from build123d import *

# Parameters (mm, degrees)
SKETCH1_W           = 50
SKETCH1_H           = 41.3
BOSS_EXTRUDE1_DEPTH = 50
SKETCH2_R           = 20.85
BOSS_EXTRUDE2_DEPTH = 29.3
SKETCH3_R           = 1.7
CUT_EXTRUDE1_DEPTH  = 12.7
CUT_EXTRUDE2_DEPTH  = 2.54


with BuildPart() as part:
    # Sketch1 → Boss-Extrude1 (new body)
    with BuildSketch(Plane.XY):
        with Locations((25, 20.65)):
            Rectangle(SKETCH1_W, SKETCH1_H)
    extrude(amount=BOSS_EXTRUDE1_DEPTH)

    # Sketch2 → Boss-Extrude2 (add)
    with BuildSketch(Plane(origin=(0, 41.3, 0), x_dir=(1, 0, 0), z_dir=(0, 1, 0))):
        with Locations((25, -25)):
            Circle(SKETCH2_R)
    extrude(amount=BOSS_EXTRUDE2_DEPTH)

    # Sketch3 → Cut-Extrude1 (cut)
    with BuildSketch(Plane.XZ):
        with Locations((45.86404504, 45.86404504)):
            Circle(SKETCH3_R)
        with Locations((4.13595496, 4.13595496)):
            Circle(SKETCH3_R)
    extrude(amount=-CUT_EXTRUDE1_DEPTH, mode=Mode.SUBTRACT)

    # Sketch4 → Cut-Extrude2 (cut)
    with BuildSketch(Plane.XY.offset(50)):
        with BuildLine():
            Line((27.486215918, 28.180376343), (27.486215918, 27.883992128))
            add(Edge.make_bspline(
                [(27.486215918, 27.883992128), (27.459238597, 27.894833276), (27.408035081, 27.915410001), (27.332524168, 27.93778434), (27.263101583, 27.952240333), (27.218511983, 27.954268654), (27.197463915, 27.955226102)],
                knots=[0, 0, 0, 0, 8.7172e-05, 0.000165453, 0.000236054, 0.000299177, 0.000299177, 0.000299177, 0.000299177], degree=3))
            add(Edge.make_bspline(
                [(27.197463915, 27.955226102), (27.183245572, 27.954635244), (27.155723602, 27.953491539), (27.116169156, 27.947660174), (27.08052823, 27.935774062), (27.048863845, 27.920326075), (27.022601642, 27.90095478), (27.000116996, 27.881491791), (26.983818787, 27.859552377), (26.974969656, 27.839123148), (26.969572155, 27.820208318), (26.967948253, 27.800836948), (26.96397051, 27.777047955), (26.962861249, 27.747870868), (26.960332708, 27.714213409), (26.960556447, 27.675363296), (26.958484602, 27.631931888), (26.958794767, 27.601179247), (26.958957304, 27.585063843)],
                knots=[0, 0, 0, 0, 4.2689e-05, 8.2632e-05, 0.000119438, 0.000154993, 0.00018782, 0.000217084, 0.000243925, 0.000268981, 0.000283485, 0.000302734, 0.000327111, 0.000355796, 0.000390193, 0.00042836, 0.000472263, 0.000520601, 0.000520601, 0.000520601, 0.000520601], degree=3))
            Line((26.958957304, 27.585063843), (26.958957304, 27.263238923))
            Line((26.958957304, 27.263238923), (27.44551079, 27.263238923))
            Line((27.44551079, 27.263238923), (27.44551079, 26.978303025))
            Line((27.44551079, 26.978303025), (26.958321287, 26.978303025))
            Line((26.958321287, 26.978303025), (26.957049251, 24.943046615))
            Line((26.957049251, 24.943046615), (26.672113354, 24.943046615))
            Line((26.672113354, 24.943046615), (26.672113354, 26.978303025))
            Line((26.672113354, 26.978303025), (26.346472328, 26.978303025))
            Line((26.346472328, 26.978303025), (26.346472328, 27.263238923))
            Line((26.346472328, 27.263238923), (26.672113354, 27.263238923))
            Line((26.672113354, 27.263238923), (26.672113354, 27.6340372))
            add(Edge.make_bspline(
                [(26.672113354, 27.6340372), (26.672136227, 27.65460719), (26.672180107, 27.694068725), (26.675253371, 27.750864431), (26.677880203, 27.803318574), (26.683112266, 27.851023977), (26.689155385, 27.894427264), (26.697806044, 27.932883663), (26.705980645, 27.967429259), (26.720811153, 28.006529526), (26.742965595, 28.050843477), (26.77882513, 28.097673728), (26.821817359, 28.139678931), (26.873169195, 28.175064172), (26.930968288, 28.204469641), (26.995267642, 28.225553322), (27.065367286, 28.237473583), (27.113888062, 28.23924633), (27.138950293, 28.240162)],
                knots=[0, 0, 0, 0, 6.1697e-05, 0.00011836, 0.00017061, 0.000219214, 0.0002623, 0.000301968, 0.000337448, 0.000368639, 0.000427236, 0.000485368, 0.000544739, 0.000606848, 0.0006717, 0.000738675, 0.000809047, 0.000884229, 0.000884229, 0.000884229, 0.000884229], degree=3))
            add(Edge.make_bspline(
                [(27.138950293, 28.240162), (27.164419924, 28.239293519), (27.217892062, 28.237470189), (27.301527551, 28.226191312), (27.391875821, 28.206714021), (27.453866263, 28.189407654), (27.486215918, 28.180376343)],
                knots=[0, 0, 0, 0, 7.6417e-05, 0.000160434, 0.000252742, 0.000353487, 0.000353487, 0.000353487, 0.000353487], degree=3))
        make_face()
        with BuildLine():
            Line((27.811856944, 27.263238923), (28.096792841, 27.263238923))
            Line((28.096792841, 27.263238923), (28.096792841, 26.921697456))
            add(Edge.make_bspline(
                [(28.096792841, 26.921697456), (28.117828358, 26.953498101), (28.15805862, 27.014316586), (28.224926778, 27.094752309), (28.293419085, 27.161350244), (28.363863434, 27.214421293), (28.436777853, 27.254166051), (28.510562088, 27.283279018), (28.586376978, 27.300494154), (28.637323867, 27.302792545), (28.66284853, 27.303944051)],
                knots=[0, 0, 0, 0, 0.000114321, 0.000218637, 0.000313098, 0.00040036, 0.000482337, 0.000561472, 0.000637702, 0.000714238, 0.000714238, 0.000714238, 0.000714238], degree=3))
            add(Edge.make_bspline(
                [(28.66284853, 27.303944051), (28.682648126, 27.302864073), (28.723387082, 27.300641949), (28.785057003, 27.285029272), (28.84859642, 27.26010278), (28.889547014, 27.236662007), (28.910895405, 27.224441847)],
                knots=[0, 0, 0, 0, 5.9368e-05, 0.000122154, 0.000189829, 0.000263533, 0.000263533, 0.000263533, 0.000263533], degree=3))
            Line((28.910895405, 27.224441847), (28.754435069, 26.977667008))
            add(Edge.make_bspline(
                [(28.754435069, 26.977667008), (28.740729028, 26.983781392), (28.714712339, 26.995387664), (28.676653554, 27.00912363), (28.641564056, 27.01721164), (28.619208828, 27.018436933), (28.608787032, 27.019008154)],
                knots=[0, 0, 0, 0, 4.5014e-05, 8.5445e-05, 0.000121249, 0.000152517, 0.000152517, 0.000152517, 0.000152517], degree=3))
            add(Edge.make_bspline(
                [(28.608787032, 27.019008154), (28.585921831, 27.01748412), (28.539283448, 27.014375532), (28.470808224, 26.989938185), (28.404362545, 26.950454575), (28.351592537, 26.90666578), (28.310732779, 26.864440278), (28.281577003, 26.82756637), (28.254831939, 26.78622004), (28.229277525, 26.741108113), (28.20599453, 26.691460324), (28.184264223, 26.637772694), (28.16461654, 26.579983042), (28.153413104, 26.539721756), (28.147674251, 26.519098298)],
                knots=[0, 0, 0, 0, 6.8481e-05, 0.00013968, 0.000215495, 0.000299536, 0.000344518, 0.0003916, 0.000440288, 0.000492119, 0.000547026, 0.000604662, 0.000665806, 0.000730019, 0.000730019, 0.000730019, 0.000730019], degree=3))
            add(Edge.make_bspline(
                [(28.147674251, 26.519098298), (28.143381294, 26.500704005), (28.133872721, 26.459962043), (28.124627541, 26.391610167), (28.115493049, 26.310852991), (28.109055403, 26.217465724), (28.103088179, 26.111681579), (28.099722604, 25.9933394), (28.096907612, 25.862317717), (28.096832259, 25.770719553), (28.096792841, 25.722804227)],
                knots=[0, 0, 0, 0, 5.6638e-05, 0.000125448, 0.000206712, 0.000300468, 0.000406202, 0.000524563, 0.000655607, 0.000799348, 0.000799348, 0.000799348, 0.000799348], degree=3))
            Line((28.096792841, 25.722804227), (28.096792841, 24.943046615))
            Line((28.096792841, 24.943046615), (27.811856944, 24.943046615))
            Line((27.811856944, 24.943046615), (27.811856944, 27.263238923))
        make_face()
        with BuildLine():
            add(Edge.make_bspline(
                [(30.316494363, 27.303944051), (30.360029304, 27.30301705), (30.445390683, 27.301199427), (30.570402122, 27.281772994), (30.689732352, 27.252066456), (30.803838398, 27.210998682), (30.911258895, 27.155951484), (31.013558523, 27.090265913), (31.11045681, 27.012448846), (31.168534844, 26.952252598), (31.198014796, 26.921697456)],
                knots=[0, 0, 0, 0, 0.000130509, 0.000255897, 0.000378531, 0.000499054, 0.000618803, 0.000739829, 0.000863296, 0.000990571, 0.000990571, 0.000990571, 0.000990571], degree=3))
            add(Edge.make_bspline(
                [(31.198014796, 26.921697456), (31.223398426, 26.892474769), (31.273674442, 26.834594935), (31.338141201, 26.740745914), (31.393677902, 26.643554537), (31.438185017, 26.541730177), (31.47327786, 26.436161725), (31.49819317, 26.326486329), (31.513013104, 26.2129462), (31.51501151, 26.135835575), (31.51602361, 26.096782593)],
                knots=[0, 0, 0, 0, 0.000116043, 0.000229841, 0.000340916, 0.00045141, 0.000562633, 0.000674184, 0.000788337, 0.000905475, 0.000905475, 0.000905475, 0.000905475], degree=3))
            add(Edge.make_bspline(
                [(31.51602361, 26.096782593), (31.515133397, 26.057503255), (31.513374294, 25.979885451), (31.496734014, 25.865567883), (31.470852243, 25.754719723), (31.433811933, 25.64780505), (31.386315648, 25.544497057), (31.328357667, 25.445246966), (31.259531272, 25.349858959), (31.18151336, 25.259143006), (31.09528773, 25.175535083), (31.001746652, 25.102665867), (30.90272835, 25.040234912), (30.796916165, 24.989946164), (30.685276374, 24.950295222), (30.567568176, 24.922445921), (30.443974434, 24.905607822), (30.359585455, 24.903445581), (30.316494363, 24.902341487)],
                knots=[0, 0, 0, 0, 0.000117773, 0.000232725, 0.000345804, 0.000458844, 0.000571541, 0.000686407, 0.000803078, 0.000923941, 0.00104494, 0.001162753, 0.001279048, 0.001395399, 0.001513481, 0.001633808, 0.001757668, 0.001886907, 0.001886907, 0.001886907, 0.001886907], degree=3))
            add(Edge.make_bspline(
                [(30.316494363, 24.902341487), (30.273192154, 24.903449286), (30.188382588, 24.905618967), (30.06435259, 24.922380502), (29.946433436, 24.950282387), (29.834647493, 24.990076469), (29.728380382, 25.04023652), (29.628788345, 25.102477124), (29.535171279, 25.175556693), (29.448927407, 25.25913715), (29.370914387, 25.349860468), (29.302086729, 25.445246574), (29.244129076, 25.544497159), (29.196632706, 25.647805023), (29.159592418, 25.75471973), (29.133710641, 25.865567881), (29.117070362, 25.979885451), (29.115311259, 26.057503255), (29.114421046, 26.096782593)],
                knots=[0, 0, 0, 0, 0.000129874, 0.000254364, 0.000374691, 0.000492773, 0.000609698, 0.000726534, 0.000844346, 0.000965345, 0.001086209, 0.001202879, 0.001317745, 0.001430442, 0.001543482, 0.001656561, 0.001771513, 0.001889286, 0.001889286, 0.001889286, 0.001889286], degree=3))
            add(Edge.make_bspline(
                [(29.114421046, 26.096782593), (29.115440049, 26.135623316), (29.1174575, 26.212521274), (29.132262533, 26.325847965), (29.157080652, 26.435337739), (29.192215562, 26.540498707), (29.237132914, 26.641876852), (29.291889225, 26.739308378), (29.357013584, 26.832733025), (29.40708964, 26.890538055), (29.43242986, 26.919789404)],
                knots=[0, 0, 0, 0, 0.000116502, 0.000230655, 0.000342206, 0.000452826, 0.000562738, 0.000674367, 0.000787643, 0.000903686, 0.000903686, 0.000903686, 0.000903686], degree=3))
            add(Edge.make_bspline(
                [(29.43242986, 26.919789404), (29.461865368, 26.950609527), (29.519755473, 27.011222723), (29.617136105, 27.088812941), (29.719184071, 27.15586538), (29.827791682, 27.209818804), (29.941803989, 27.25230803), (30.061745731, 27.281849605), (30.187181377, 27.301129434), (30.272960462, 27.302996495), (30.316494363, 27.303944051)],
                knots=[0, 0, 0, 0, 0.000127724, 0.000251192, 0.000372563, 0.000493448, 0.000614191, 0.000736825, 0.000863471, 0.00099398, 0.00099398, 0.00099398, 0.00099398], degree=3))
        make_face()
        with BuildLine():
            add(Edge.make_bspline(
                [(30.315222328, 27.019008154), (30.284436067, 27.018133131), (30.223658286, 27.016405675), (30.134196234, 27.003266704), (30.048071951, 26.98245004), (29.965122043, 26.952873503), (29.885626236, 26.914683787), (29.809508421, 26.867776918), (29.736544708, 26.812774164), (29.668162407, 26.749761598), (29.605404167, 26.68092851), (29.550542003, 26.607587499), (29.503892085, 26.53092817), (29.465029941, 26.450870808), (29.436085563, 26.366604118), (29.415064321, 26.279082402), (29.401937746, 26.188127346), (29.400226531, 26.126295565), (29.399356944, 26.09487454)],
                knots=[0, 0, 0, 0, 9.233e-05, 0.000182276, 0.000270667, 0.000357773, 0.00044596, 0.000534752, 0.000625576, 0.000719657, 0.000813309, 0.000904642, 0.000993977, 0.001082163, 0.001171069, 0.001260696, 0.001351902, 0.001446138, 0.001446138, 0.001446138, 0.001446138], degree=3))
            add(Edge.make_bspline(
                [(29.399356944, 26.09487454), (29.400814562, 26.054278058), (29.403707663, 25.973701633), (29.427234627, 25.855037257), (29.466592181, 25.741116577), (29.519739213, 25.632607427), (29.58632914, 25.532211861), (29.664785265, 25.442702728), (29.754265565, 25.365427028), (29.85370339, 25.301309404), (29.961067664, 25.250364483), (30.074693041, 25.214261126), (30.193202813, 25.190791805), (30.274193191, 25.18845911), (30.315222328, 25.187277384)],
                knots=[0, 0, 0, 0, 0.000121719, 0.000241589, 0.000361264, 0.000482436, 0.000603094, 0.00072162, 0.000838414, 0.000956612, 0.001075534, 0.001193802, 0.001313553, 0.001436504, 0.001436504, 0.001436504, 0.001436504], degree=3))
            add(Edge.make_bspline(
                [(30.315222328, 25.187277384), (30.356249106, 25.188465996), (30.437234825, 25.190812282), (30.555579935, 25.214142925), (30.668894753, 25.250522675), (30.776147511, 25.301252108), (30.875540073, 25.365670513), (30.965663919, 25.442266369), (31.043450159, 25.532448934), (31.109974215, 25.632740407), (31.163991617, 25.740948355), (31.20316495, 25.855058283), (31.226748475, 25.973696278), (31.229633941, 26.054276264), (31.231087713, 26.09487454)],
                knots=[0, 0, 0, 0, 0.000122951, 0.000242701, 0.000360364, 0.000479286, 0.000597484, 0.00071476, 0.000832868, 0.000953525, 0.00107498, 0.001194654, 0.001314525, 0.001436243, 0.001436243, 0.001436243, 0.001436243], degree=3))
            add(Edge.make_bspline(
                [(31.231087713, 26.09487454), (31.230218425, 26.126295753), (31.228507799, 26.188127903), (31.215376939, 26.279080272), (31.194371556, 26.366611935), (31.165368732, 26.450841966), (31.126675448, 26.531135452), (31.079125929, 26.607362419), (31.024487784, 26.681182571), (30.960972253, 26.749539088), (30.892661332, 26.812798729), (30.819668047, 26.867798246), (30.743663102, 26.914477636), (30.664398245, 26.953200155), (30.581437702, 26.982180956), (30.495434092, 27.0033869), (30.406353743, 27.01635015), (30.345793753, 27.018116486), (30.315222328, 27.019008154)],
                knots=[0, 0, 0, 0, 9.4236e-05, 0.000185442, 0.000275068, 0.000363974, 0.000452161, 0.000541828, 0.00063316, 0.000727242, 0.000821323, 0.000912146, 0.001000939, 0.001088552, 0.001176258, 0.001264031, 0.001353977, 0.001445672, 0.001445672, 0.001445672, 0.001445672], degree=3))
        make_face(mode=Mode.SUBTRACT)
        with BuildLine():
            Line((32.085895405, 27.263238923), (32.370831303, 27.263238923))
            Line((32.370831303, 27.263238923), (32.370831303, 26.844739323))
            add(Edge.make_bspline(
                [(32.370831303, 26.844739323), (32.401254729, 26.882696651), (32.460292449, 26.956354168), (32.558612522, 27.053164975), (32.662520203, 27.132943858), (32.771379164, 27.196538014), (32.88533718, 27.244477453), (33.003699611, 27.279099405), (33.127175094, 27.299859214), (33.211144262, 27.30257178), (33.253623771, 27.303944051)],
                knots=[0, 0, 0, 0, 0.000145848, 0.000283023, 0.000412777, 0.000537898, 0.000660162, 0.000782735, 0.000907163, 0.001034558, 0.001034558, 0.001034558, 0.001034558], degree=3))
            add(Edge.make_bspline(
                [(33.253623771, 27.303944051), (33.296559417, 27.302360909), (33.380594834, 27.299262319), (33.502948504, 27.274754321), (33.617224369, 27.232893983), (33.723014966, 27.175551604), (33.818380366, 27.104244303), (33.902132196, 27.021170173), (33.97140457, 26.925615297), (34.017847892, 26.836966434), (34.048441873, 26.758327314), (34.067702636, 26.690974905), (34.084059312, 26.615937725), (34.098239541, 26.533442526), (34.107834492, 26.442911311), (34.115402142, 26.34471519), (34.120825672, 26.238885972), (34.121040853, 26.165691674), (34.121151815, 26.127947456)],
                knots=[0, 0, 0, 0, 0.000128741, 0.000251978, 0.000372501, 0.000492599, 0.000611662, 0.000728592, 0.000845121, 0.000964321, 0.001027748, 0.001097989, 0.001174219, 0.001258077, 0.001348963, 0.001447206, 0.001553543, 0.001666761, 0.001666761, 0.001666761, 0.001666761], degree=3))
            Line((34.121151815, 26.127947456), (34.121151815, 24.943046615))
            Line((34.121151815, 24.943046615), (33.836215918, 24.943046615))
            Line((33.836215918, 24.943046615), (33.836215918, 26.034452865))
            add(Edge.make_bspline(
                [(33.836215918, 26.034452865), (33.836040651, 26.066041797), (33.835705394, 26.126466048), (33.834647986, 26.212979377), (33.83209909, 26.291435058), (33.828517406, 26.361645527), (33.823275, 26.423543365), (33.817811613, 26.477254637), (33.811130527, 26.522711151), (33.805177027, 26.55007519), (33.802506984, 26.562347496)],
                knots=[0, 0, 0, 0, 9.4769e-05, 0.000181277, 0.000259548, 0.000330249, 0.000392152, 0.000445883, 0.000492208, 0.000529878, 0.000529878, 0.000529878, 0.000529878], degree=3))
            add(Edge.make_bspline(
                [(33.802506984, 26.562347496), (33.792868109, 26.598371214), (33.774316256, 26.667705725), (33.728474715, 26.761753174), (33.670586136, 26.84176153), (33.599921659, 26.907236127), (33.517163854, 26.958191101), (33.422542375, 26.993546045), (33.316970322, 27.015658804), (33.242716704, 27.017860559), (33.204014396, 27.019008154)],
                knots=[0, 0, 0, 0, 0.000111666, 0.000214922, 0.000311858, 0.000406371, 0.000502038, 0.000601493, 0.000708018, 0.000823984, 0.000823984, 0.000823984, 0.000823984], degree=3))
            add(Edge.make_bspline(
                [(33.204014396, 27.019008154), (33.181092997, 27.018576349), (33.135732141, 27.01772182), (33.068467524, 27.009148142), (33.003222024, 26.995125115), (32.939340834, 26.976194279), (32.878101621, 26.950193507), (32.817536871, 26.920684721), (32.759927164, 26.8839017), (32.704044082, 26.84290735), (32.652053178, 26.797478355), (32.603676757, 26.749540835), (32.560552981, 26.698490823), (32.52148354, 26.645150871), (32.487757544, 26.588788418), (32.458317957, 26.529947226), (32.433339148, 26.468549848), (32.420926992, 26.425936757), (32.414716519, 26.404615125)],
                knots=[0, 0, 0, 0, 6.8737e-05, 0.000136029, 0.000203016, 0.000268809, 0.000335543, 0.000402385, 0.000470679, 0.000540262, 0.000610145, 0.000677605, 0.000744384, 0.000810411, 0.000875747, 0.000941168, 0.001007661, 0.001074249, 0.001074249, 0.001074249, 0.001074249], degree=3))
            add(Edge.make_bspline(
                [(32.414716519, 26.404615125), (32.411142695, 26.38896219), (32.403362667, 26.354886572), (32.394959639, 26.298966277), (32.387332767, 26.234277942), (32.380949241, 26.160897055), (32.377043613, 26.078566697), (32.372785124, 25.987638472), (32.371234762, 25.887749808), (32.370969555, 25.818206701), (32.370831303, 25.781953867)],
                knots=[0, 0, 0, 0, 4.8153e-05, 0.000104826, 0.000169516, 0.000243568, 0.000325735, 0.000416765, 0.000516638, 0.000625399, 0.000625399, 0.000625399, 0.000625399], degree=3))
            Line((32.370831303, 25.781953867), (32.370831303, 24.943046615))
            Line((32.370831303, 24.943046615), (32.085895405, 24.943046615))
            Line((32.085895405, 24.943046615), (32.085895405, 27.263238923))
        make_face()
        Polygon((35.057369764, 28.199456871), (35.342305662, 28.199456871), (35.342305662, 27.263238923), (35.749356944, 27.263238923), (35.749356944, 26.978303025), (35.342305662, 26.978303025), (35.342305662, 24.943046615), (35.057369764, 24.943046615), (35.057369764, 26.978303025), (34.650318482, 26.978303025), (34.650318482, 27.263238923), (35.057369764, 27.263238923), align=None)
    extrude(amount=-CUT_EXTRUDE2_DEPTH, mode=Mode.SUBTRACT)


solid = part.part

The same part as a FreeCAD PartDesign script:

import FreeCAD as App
import Part
import Sketcher


def add_polygon(sketch, points):
    """Adds a closed chain of lines whose ends are joined by coincident constraints."""
    first, n = sketch.GeometryCount, len(points)
    for a, b in zip(points, points[1:] + points[:1]):
        sketch.addGeometry(Part.LineSegment(App.Vector(*a, 0), App.Vector(*b, 0)), False)
    for i in range(n):
        sketch.addConstraint(Sketcher.Constraint("Coincident", first + i, 2, first + (i + 1) % n, 1))

doc = App.newDocument("Part")
body = doc.addObject("PartDesign::Body", "Body")

# Sketch on XY plane
sketch1 = body.newObject("Sketcher::SketchObject", "Sketch")
sketch1.AttachmentSupport = (doc.getObject("XY_Plane"), [""])
sketch1.MapMode = "FlatFace"
add_polygon(sketch1, [(0, 41.3), (0, 0), (50, 0), (50, 41.3)])  # lines 0-3
sketch1.addConstraint([
    Sketcher.Constraint("Vertical", 0),
    Sketcher.Constraint("Horizontal", 1),
    Sketcher.Constraint("Vertical", 2),
    Sketcher.Constraint("Horizontal", 3),
    Sketcher.Constraint("Coincident", 0, 2, -1, 1),
    Sketcher.Constraint("DistanceX", 1, 1, 1, 2, 50.0),
    Sketcher.Constraint("DistanceY", 0, 2, 0, 1, 41.3),
])
pad1 = body.newObject("PartDesign::Pad", "Pad")
pad1.Profile = sketch1
pad1.Length = 50

# Sketch on XZ plane
sketch2 = body.newObject("Sketcher::SketchObject", "Sketch001")
sketch2.AttachmentSupport = (doc.getObject("XZ_Plane"), [""])
sketch2.MapMode = "FlatFace"
sketch2.AttachmentOffset = App.Placement(App.Vector(0, 0, -41.3), App.Rotation())
sketch2.addGeometry(Part.Circle(App.Vector(25, 25, 0), App.Vector(0, 0, 1), 20.85), False)
sketch2.addConstraint([
    Sketcher.Constraint("Diameter", 0, 41.7),
    Sketcher.Constraint("DistanceX", -1, 1, 0, 3, 25.0),
    Sketcher.Constraint("DistanceY", -1, 1, 0, 3, 25.0),
])
pad2 = body.newObject("PartDesign::Pad", "Pad001")
pad2.Profile = sketch2
pad2.Length = 29.3
pad2.Reversed = True

# Sketch on XZ plane
sketch3 = body.newObject("Sketcher::SketchObject", "Sketch002")
sketch3.AttachmentSupport = (doc.getObject("XZ_Plane"), [""])
sketch3.MapMode = "FlatFace"
sketch3.addGeometry([
    Part.Circle(App.Vector(45.864045, 45.864045, 0), App.Vector(0, 0, 1), 1.7),
    Part.Circle(App.Vector(4.135955, 4.135955, 0), App.Vector(0, 0, 1), 1.7),
], False)
sketch3.addConstraint([
    Sketcher.Constraint("Equal", 0, 1),
    Sketcher.Constraint("Diameter", 0, 3.4),
    Sketcher.Constraint("DistanceX", 1, 3, 0, 3, 41.72809),
    Sketcher.Constraint("DistanceY", 1, 3, 0, 3, 41.72809),
    Sketcher.Constraint("DistanceX", -1, 1, 0, 3, 45.864045),
    Sketcher.Constraint("DistanceY", -1, 1, 0, 3, 45.864045),
])
pocket1 = body.newObject("PartDesign::Pocket", "Pocket")
pocket1.Profile = sketch3
pocket1.Length = 12.7

# Sketch on XY plane
sketch4 = body.newObject("Sketcher::SketchObject", "Sketch003")
sketch4.AttachmentSupport = (doc.getObject("XY_Plane"), [""])
sketch4.MapMode = "FlatFace"
sketch4.AttachmentOffset = App.Placement(App.Vector(0, 0, 50), App.Rotation())
sketch4.addGeometry(Part.LineSegment(App.Vector(27.486216, 27.883992, 0), App.Vector(27.486216, 28.180376, 0)), False)  # 0
sketch4.addGeometry(Part.BSplineCurve([App.Vector(27.13895, 28.240162, 0), App.Vector(27.16442, 28.239294, 0), App.Vector(27.217892, 28.23747, 0), App.Vector(27.301528, 28.226191, 0), App.Vector(27.391876, 28.206714, 0), App.Vector(27.453866, 28.189408, 0), App.Vector(27.486216, 28.180376, 0)], [4, 1, 1, 1, 4], [0, 0.000076417, 0.000160434, 0.000252742, 0.000353487], False, 3, [1, 1, 1, 1, 1, 1, 1], False), False)  # 1
sketch4.addGeometry(Part.BSplineCurve([App.Vector(26.672113, 27.634037, 0), App.Vector(26.672136, 27.654607, 0), App.Vector(26.67218, 27.694069, 0), App.Vector(26.675253, 27.750864, 0), App.Vector(26.67788, 27.803319, 0), App.Vector(26.683112, 27.851024, 0), App.Vector(26.689155, 27.894427, 0), App.Vector(26.697806, 27.932884, 0), App.Vector(26.705981, 27.967429, 0), App.Vector(26.720811, 28.00653, 0), App.Vector(26.742966, 28.050843, 0), App.Vector(26.778825, 28.097674, 0), App.Vector(26.821817, 28.139679, 0), App.Vector(26.873169, 28.175064, 0), App.Vector(26.930968, 28.20447, 0), App.Vector(26.995268, 28.225553, 0), App.Vector(27.065367, 28.237474, 0), App.Vector(27.113888, 28.239246, 0), App.Vector(27.13895, 28.240162, 0)], [4, 1, 1, 1, 1, 1, 1, 1, 1, 1, 1, 1, 1, 1, 1, 1, 4], [0, 0.000061697, 0.00011836, 0.00017061, 0.000219214, 0.0002623, 0.000301968, 0.000337448, 0.000368639, 0.000427236, 0.000485368, 0.000544739, 0.000606848, 0.0006717, 0.000738675, 0.000809047, 0.000884229], False, 3, [1, 1, 1, 1, 1, 1, 1, 1, 1, 1, 1, 1, 1, 1, 1, 1, 1, 1, 1], False), False)  # 2
sketch4.addGeometry(Part.LineSegment(App.Vector(26.672113, 27.634037, 0), App.Vector(26.672113, 27.263239, 0)), False)  # 3
sketch4.addGeometry(Part.LineSegment(App.Vector(26.672113, 27.263239, 0), App.Vector(26.346472, 27.263239, 0)), False)  # 4
sketch4.addGeometry(Part.LineSegment(App.Vector(26.346472, 27.263239, 0), App.Vector(26.346472, 26.978303, 0)), False)  # 5
sketch4.addGeometry(Part.LineSegment(App.Vector(26.346472, 26.978303, 0), App.Vector(26.672113, 26.978303, 0)), False)  # 6
sketch4.addGeometry(Part.LineSegment(App.Vector(26.672113, 26.978303, 0), App.Vector(26.672113, 24.943047, 0)), False)  # 7
sketch4.addGeometry(Part.LineSegment(App.Vector(26.672113, 24.943047, 0), App.Vector(26.957049, 24.943047, 0)), False)  # 8
sketch4.addGeometry(Part.LineSegment(App.Vector(26.957049, 24.943047, 0), App.Vector(26.958321, 26.978303, 0)), False)  # 9
sketch4.addGeometry(Part.LineSegment(App.Vector(26.958321, 26.978303, 0), App.Vector(27.445511, 26.978303, 0)), False)  # 10
sketch4.addGeometry(Part.LineSegment(App.Vector(27.445511, 26.978303, 0), App.Vector(27.445511, 27.263239, 0)), False)  # 11
sketch4.addGeometry(Part.LineSegment(App.Vector(27.445511, 27.263239, 0), App.Vector(26.958957, 27.263239, 0)), False)  # 12
sketch4.addGeometry(Part.LineSegment(App.Vector(26.958957, 27.263239, 0), App.Vector(26.958957, 27.585064, 0)), False)  # 13
sketch4.addGeometry(Part.BSplineCurve([App.Vector(27.197464, 27.955226, 0), App.Vector(27.183246, 27.954635, 0), App.Vector(27.155724, 27.953492, 0), App.Vector(27.116169, 27.94766, 0), App.Vector(27.080528, 27.935774, 0), App.Vector(27.048864, 27.920326, 0), App.Vector(27.022602, 27.900955, 0), App.Vector(27.000117, 27.881492, 0), App.Vector(26.983819, 27.859552, 0), App.Vector(26.97497, 27.839123, 0), App.Vector(26.969572, 27.820208, 0), App.Vector(26.967948, 27.800837, 0), App.Vector(26.963971, 27.777048, 0), App.Vector(26.962861, 27.747871, 0), App.Vector(26.960333, 27.714213, 0), App.Vector(26.960556, 27.675363, 0), App.Vector(26.958485, 27.631932, 0), App.Vector(26.958795, 27.601179, 0), App.Vector(26.958957, 27.585064, 0)], [4, 1, 1, 1, 1, 1, 1, 1, 1, 1, 1, 1, 1, 1, 1, 1, 4], [0, 0.000042689, 0.000082632, 0.000119438, 0.000154993, 0.00018782, 0.000217084, 0.000243925, 0.000268981, 0.000283485, 0.000302734, 0.000327111, 0.000355796, 0.000390193, 0.00042836, 0.000472263, 0.000520601], False, 3, [1, 1, 1, 1, 1, 1, 1, 1, 1, 1, 1, 1, 1, 1, 1, 1, 1, 1, 1], False), False)  # 14
sketch4.addGeometry(Part.BSplineCurve([App.Vector(27.486216, 27.883992, 0), App.Vector(27.459239, 27.894833, 0), App.Vector(27.408035, 27.91541, 0), App.Vector(27.332524, 27.937784, 0), App.Vector(27.263102, 27.95224, 0), App.Vector(27.218512, 27.954269, 0), App.Vector(27.197464, 27.955226, 0)], [4, 1, 1, 1, 4], [0, 0.000087172, 0.000165453, 0.000236054, 0.000299177], False, 3, [1, 1, 1, 1, 1, 1, 1], False), False)  # 15
sketch4.addGeometry(Part.LineSegment(App.Vector(28.096793, 27.263239, 0), App.Vector(27.811857, 27.263239, 0)), False)  # 16
sketch4.addGeometry(Part.LineSegment(App.Vector(27.811857, 27.263239, 0), App.Vector(27.811857, 24.943047, 0)), False)  # 17
sketch4.addGeometry(Part.LineSegment(App.Vector(27.811857, 24.943047, 0), App.Vector(28.096793, 24.943047, 0)), False)  # 18
sketch4.addGeometry(Part.LineSegment(App.Vector(28.096793, 24.943047, 0), App.Vector(28.096793, 25.722804, 0)), False)  # 19
sketch4.addGeometry(Part.BSplineCurve([App.Vector(28.147674, 26.519098, 0), App.Vector(28.143381, 26.500704, 0), App.Vector(28.133873, 26.459962, 0), App.Vector(28.124628, 26.39161, 0), App.Vector(28.115493, 26.310853, 0), App.Vector(28.109055, 26.217466, 0), App.Vector(28.103088, 26.111682, 0), App.Vector(28.099723, 25.993339, 0), App.Vector(28.096908, 25.862318, 0), App.Vector(28.096832, 25.77072, 0), App.Vector(28.096793, 25.722804, 0)], [4, 1, 1, 1, 1, 1, 1, 1, 4], [0, 0.000056638, 0.000125448, 0.000206712, 0.000300468, 0.000406202, 0.000524563, 0.000655607, 0.000799348], False, 3, [1, 1, 1, 1, 1, 1, 1, 1, 1, 1, 1], False), False)  # 20
sketch4.addGeometry(Part.BSplineCurve([App.Vector(28.608787, 27.019008, 0), App.Vector(28.585922, 27.017484, 0), App.Vector(28.539283, 27.014376, 0), App.Vector(28.470808, 26.989938, 0), App.Vector(28.404363, 26.950455, 0), App.Vector(28.351593, 26.906666, 0), App.Vector(28.310733, 26.86444, 0), App.Vector(28.281577, 26.827566, 0), App.Vector(28.254832, 26.78622, 0), App.Vector(28.229278, 26.741108, 0), App.Vector(28.205995, 26.69146, 0), App.Vector(28.184264, 26.637773, 0), App.Vector(28.164617, 26.579983, 0), App.Vector(28.153413, 26.539722, 0), App.Vector(28.147674, 26.519098, 0)], [4, 1, 1, 1, 1, 1, 1, 1, 1, 1, 1, 1, 4], [0, 0.000068481, 0.00013968, 0.000215495, 0.000299536, 0.000344518, 0.0003916, 0.000440288, 0.000492119, 0.000547026, 0.000604662, 0.000665806, 0.000730019], False, 3, [1, 1, 1, 1, 1, 1, 1, 1, 1, 1, 1, 1, 1, 1, 1], False), False)  # 21
sketch4.addGeometry(Part.BSplineCurve([App.Vector(28.754435, 26.977667, 0), App.Vector(28.740729, 26.983781, 0), App.Vector(28.714712, 26.995388, 0), App.Vector(28.676654, 27.009124, 0), App.Vector(28.641564, 27.017212, 0), App.Vector(28.619209, 27.018437, 0), App.Vector(28.608787, 27.019008, 0)], [4, 1, 1, 1, 4], [0, 0.000045014, 0.000085445, 0.000121249, 0.000152517], False, 3, [1, 1, 1, 1, 1, 1, 1], False), False)  # 22
sketch4.addGeometry(Part.LineSegment(App.Vector(28.754435, 26.977667, 0), App.Vector(28.910895, 27.224442, 0)), False)  # 23
sketch4.addGeometry(Part.BSplineCurve([App.Vector(28.662849, 27.303944, 0), App.Vector(28.682648, 27.302864, 0), App.Vector(28.723387, 27.300642, 0), App.Vector(28.785057, 27.285029, 0), App.Vector(28.848596, 27.260103, 0), App.Vector(28.889547, 27.236662, 0), App.Vector(28.910895, 27.224442, 0)], [4, 1, 1, 1, 4], [0, 0.000059368, 0.000122154, 0.000189829, 0.000263533], False, 3, [1, 1, 1, 1, 1, 1, 1], False), False)  # 24
sketch4.addGeometry(Part.BSplineCurve([App.Vector(28.096793, 26.921697, 0), App.Vector(28.117828, 26.953498, 0), App.Vector(28.158059, 27.014317, 0), App.Vector(28.224927, 27.094752, 0), App.Vector(28.293419, 27.16135, 0), App.Vector(28.363863, 27.214421, 0), App.Vector(28.436778, 27.254166, 0), App.Vector(28.510562, 27.283279, 0), App.Vector(28.586377, 27.300494, 0), App.Vector(28.637324, 27.302793, 0), App.Vector(28.662849, 27.303944, 0)], [4, 1, 1, 1, 1, 1, 1, 1, 4], [0, 0.000114321, 0.000218637, 0.000313098, 0.00040036, 0.000482337, 0.000561472, 0.000637702, 0.000714238], False, 3, [1, 1, 1, 1, 1, 1, 1, 1, 1, 1, 1], False), False)  # 25
sketch4.addGeometry(Part.LineSegment(App.Vector(28.096793, 26.921697, 0), App.Vector(28.096793, 27.263239, 0)), False)  # 26
sketch4.addGeometry(Part.BSplineCurve([App.Vector(30.316494, 27.303944, 0), App.Vector(30.360029, 27.303017, 0), App.Vector(30.445391, 27.301199, 0), App.Vector(30.570402, 27.281773, 0), App.Vector(30.689732, 27.252066, 0), App.Vector(30.803838, 27.210999, 0), App.Vector(30.911259, 27.155951, 0), App.Vector(31.013559, 27.090266, 0), App.Vector(31.110457, 27.012449, 0), App.Vector(31.168535, 26.952253, 0), App.Vector(31.198015, 26.921697, 0)], [4, 1, 1, 1, 1, 1, 1, 1, 4], [0, 0.000130509, 0.000255897, 0.000378531, 0.000499054, 0.000618803, 0.000739829, 0.000863296, 0.000990571], False, 3, [1, 1, 1, 1, 1, 1, 1, 1, 1, 1, 1], False), False)  # 27
sketch4.addGeometry(Part.BSplineCurve([App.Vector(29.43243, 26.919789, 0), App.Vector(29.461865, 26.95061, 0), App.Vector(29.519755, 27.011223, 0), App.Vector(29.617136, 27.088813, 0), App.Vector(29.719184, 27.155865, 0), App.Vector(29.827792, 27.209819, 0), App.Vector(29.941804, 27.252308, 0), App.Vector(30.061746, 27.28185, 0), App.Vector(30.187181, 27.301129, 0), App.Vector(30.27296, 27.302996, 0), App.Vector(30.316494, 27.303944, 0)], [4, 1, 1, 1, 1, 1, 1, 1, 4], [0, 0.000127724, 0.000251192, 0.000372563, 0.000493448, 0.000614191, 0.000736825, 0.000863471, 0.00099398], False, 3, [1, 1, 1, 1, 1, 1, 1, 1, 1, 1, 1], False), False)  # 28
sketch4.addGeometry(Part.BSplineCurve([App.Vector(29.114421, 26.096783, 0), App.Vector(29.11544, 26.135623, 0), App.Vector(29.117458, 26.212521, 0), App.Vector(29.132263, 26.325848, 0), App.Vector(29.157081, 26.435338, 0), App.Vector(29.192216, 26.540499, 0), App.Vector(29.237133, 26.641877, 0), App.Vector(29.291889, 26.739308, 0), App.Vector(29.357014, 26.832733, 0), App.Vector(29.40709, 26.890538, 0), App.Vector(29.43243, 26.919789, 0)], [4, 1, 1, 1, 1, 1, 1, 1, 4], [0, 0.000116502, 0.000230655, 0.000342206, 0.000452826, 0.000562738, 0.000674367, 0.000787643, 0.000903686], False, 3, [1, 1, 1, 1, 1, 1, 1, 1, 1, 1, 1], False), False)  # 29
sketch4.addGeometry(Part.BSplineCurve([App.Vector(30.316494, 24.902341, 0), App.Vector(30.273192, 24.903449, 0), App.Vector(30.188383, 24.905619, 0), App.Vector(30.064353, 24.922381, 0), App.Vector(29.946433, 24.950282, 0), App.Vector(29.834647, 24.990076, 0), App.Vector(29.72838, 25.040237, 0), App.Vector(29.628788, 25.102477, 0), App.Vector(29.535171, 25.175557, 0), App.Vector(29.448927, 25.259137, 0), App.Vector(29.370914, 25.34986, 0), App.Vector(29.302087, 25.445247, 0), App.Vector(29.244129, 25.544497, 0), App.Vector(29.196633, 25.647805, 0), App.Vector(29.159592, 25.75472, 0), App.Vector(29.133711, 25.865568, 0), App.Vector(29.11707, 25.979885, 0), App.Vector(29.115311, 26.057503, 0), App.Vector(29.114421, 26.096783, 0)], [4, 1, 1, 1, 1, 1, 1, 1, 1, 1, 1, 1, 1, 1, 1, 1, 4], [0, 0.000129874, 0.000254364, 0.000374691, 0.000492773, 0.000609698, 0.000726534, 0.000844346, 0.000965345, 0.001086209, 0.001202879, 0.001317745, 0.001430442, 0.001543482, 0.001656561, 0.001771513, 0.001889286], False, 3, [1, 1, 1, 1, 1, 1, 1, 1, 1, 1, 1, 1, 1, 1, 1, 1, 1, 1, 1], False), False)  # 30
sketch4.addGeometry(Part.BSplineCurve([App.Vector(31.516024, 26.096783, 0), App.Vector(31.515133, 26.057503, 0), App.Vector(31.513374, 25.979885, 0), App.Vector(31.496734, 25.865568, 0), App.Vector(31.470852, 25.75472, 0), App.Vector(31.433812, 25.647805, 0), App.Vector(31.386316, 25.544497, 0), App.Vector(31.328358, 25.445247, 0), App.Vector(31.259531, 25.349859, 0), App.Vector(31.181513, 25.259143, 0), App.Vector(31.095288, 25.175535, 0), App.Vector(31.001747, 25.102666, 0), App.Vector(30.902728, 25.040235, 0), App.Vector(30.796916, 24.989946, 0), App.Vector(30.685276, 24.950295, 0), App.Vector(30.567568, 24.922446, 0), App.Vector(30.443974, 24.905608, 0), App.Vector(30.359585, 24.903446, 0), App.Vector(30.316494, 24.902341, 0)], [4, 1, 1, 1, 1, 1, 1, 1, 1, 1, 1, 1, 1, 1, 1, 1, 4], [0, 0.000117773, 0.000232725, 0.000345804, 0.000458844, 0.000571541, 0.000686407, 0.000803078, 0.000923941, 0.00104494, 0.001162753, 0.001279048, 0.001395399, 0.001513481, 0.001633808, 0.001757668, 0.001886907], False, 3, [1, 1, 1, 1, 1, 1, 1, 1, 1, 1, 1, 1, 1, 1, 1, 1, 1, 1, 1], False), False)  # 31
sketch4.addGeometry(Part.BSplineCurve([App.Vector(31.198015, 26.921697, 0), App.Vector(31.223398, 26.892475, 0), App.Vector(31.273674, 26.834595, 0), App.Vector(31.338141, 26.740746, 0), App.Vector(31.393678, 26.643555, 0), App.Vector(31.438185, 26.54173, 0), App.Vector(31.473278, 26.436162, 0), App.Vector(31.498193, 26.326486, 0), App.Vector(31.513013, 26.212946, 0), App.Vector(31.515012, 26.135836, 0), App.Vector(31.516024, 26.096783, 0)], [4, 1, 1, 1, 1, 1, 1, 1, 4], [0, 0.000116043, 0.000229841, 0.000340916, 0.00045141, 0.000562633, 0.000674184, 0.000788337, 0.000905475], False, 3, [1, 1, 1, 1, 1, 1, 1, 1, 1, 1, 1], False), False)  # 32
sketch4.addGeometry(Part.BSplineCurve([App.Vector(31.231088, 26.094875, 0), App.Vector(31.230218, 26.126296, 0), App.Vector(31.228508, 26.188128, 0), App.Vector(31.215377, 26.27908, 0), App.Vector(31.194372, 26.366612, 0), App.Vector(31.165369, 26.450842, 0), App.Vector(31.126675, 26.531135, 0), App.Vector(31.079126, 26.607362, 0), App.Vector(31.024488, 26.681183, 0), App.Vector(30.960972, 26.749539, 0), App.Vector(30.892661, 26.812799, 0), App.Vector(30.819668, 26.867798, 0), App.Vector(30.743663, 26.914478, 0), App.Vector(30.664398, 26.9532, 0), App.Vector(30.581438, 26.982181, 0), App.Vector(30.495434, 27.003387, 0), App.Vector(30.406354, 27.01635, 0), App.Vector(30.345794, 27.018116, 0), App.Vector(30.315222, 27.019008, 0)], [4, 1, 1, 1, 1, 1, 1, 1, 1, 1, 1, 1, 1, 1, 1, 1, 4], [0, 0.000094236, 0.000185442, 0.000275068, 0.000363974, 0.000452161, 0.000541828, 0.00063316, 0.000727242, 0.000821323, 0.000912146, 0.001000939, 0.001088552, 0.001176258, 0.001264031, 0.001353977, 0.001445672], False, 3, [1, 1, 1, 1, 1, 1, 1, 1, 1, 1, 1, 1, 1, 1, 1, 1, 1, 1, 1], False), False)  # 33
sketch4.addGeometry(Part.BSplineCurve([App.Vector(30.315222, 25.187277, 0), App.Vector(30.356249, 25.188466, 0), App.Vector(30.437235, 25.190812, 0), App.Vector(30.55558, 25.214143, 0), App.Vector(30.668895, 25.250523, 0), App.Vector(30.776148, 25.301252, 0), App.Vector(30.87554, 25.365671, 0), App.Vector(30.965664, 25.442266, 0), App.Vector(31.04345, 25.532449, 0), App.Vector(31.109974, 25.63274, 0), App.Vector(31.163992, 25.740948, 0), App.Vector(31.203165, 25.855058, 0), App.Vector(31.226748, 25.973696, 0), App.Vector(31.229634, 26.054276, 0), App.Vector(31.231088, 26.094875, 0)], [4, 1, 1, 1, 1, 1, 1, 1, 1, 1, 1, 1, 4], [0, 0.000122951, 0.000242701, 0.000360364, 0.000479286, 0.000597484, 0.00071476, 0.000832868, 0.000953525, 0.00107498, 0.001194654, 0.001314525, 0.001436243], False, 3, [1, 1, 1, 1, 1, 1, 1, 1, 1, 1, 1, 1, 1, 1, 1], False), False)  # 34
sketch4.addGeometry(Part.BSplineCurve([App.Vector(29.399357, 26.094875, 0), App.Vector(29.400815, 26.054278, 0), App.Vector(29.403708, 25.973702, 0), App.Vector(29.427235, 25.855037, 0), App.Vector(29.466592, 25.741117, 0), App.Vector(29.519739, 25.632607, 0), App.Vector(29.586329, 25.532212, 0), App.Vector(29.664785, 25.442703, 0), App.Vector(29.754266, 25.365427, 0), App.Vector(29.853703, 25.301309, 0), App.Vector(29.961068, 25.250364, 0), App.Vector(30.074693, 25.214261, 0), App.Vector(30.193203, 25.190792, 0), App.Vector(30.274193, 25.188459, 0), App.Vector(30.315222, 25.187277, 0)], [4, 1, 1, 1, 1, 1, 1, 1, 1, 1, 1, 1, 4], [0, 0.000121719, 0.000241589, 0.000361264, 0.000482436, 0.000603094, 0.00072162, 0.000838414, 0.000956612, 0.001075534, 0.001193802, 0.001313553, 0.001436504], False, 3, [1, 1, 1, 1, 1, 1, 1, 1, 1, 1, 1, 1, 1, 1, 1], False), False)  # 35
sketch4.addGeometry(Part.BSplineCurve([App.Vector(30.315222, 27.019008, 0), App.Vector(30.284436, 27.018133, 0), App.Vector(30.223658, 27.016406, 0), App.Vector(30.134196, 27.003267, 0), App.Vector(30.048072, 26.98245, 0), App.Vector(29.965122, 26.952874, 0), App.Vector(29.885626, 26.914684, 0), App.Vector(29.809508, 26.867777, 0), App.Vector(29.736545, 26.812774, 0), App.Vector(29.668162, 26.749762, 0), App.Vector(29.605404, 26.680929, 0), App.Vector(29.550542, 26.607587, 0), App.Vector(29.503892, 26.530928, 0), App.Vector(29.46503, 26.450871, 0), App.Vector(29.436086, 26.366604, 0), App.Vector(29.415064, 26.279082, 0), App.Vector(29.401938, 26.188127, 0), App.Vector(29.400227, 26.126296, 0), App.Vector(29.399357, 26.094875, 0)], [4, 1, 1, 1, 1, 1, 1, 1, 1, 1, 1, 1, 1, 1, 1, 1, 4], [0, 0.00009233, 0.000182276, 0.000270667, 0.000357773, 0.00044596, 0.000534752, 0.000625576, 0.000719657, 0.000813309, 0.000904642, 0.000993977, 0.001082163, 0.001171069, 0.001260696, 0.001351902, 0.001446138], False, 3, [1, 1, 1, 1, 1, 1, 1, 1, 1, 1, 1, 1, 1, 1, 1, 1, 1, 1, 1], False), False)  # 36
sketch4.addGeometry(Part.LineSegment(App.Vector(32.370831, 27.263239, 0), App.Vector(32.085895, 27.263239, 0)), False)  # 37
sketch4.addGeometry(Part.LineSegment(App.Vector(32.085895, 27.263239, 0), App.Vector(32.085895, 24.943047, 0)), False)  # 38
sketch4.addGeometry(Part.LineSegment(App.Vector(32.085895, 24.943047, 0), App.Vector(32.370831, 24.943047, 0)), False)  # 39
sketch4.addGeometry(Part.LineSegment(App.Vector(32.370831, 24.943047, 0), App.Vector(32.370831, 25.781954, 0)), False)  # 40
sketch4.addGeometry(Part.BSplineCurve([App.Vector(32.414717, 26.404615, 0), App.Vector(32.411143, 26.388962, 0), App.Vector(32.403363, 26.354887, 0), App.Vector(32.39496, 26.298966, 0), App.Vector(32.387333, 26.234278, 0), App.Vector(32.380949, 26.160897, 0), App.Vector(32.377044, 26.078567, 0), App.Vector(32.372785, 25.987638, 0), App.Vector(32.371235, 25.88775, 0), App.Vector(32.37097, 25.818207, 0), App.Vector(32.370831, 25.781954, 0)], [4, 1, 1, 1, 1, 1, 1, 1, 4], [0, 0.000048153, 0.000104826, 0.000169516, 0.000243568, 0.000325735, 0.000416765, 0.000516638, 0.000625399], False, 3, [1, 1, 1, 1, 1, 1, 1, 1, 1, 1, 1], False), False)  # 41
sketch4.addGeometry(Part.BSplineCurve([App.Vector(33.204014, 27.019008, 0), App.Vector(33.181093, 27.018576, 0), App.Vector(33.135732, 27.017722, 0), App.Vector(33.068468, 27.009148, 0), App.Vector(33.003222, 26.995125, 0), App.Vector(32.939341, 26.976194, 0), App.Vector(32.878102, 26.950194, 0), App.Vector(32.817537, 26.920685, 0), App.Vector(32.759927, 26.883902, 0), App.Vector(32.704044, 26.842907, 0), App.Vector(32.652053, 26.797478, 0), App.Vector(32.603677, 26.749541, 0), App.Vector(32.560553, 26.698491, 0), App.Vector(32.521484, 26.645151, 0), App.Vector(32.487758, 26.588788, 0), App.Vector(32.458318, 26.529947, 0), App.Vector(32.433339, 26.46855, 0), App.Vector(32.420927, 26.425937, 0), App.Vector(32.414717, 26.404615, 0)], [4, 1, 1, 1, 1, 1, 1, 1, 1, 1, 1, 1, 1, 1, 1, 1, 4], [0, 0.000068737, 0.000136029, 0.000203016, 0.000268809, 0.000335543, 0.000402385, 0.000470679, 0.000540262, 0.000610145, 0.000677605, 0.000744384, 0.000810411, 0.000875747, 0.000941168, 0.001007661, 0.001074249], False, 3, [1, 1, 1, 1, 1, 1, 1, 1, 1, 1, 1, 1, 1, 1, 1, 1, 1, 1, 1], False), False)  # 42
sketch4.addGeometry(Part.BSplineCurve([App.Vector(33.802507, 26.562347, 0), App.Vector(33.792868, 26.598371, 0), App.Vector(33.774316, 26.667706, 0), App.Vector(33.728475, 26.761753, 0), App.Vector(33.670586, 26.841762, 0), App.Vector(33.599922, 26.907236, 0), App.Vector(33.517164, 26.958191, 0), App.Vector(33.422542, 26.993546, 0), App.Vector(33.31697, 27.015659, 0), App.Vector(33.242717, 27.017861, 0), App.Vector(33.204014, 27.019008, 0)], [4, 1, 1, 1, 1, 1, 1, 1, 4], [0, 0.000111666, 0.000214922, 0.000311858, 0.000406371, 0.000502038, 0.000601493, 0.000708018, 0.000823984], False, 3, [1, 1, 1, 1, 1, 1, 1, 1, 1, 1, 1], False), False)  # 43
sketch4.addGeometry(Part.BSplineCurve([App.Vector(33.836216, 26.034453, 0), App.Vector(33.836041, 26.066042, 0), App.Vector(33.835705, 26.126466, 0), App.Vector(33.834648, 26.212979, 0), App.Vector(33.832099, 26.291435, 0), App.Vector(33.828517, 26.361646, 0), App.Vector(33.823275, 26.423543, 0), App.Vector(33.817812, 26.477255, 0), App.Vector(33.811131, 26.522711, 0), App.Vector(33.805177, 26.550075, 0), App.Vector(33.802507, 26.562347, 0)], [4, 1, 1, 1, 1, 1, 1, 1, 4], [0, 0.000094769, 0.000181277, 0.000259548, 0.000330249, 0.000392152, 0.000445883, 0.000492208, 0.000529878], False, 3, [1, 1, 1, 1, 1, 1, 1, 1, 1, 1, 1], False), False)  # 44
sketch4.addGeometry(Part.LineSegment(App.Vector(33.836216, 26.034453, 0), App.Vector(33.836216, 24.943047, 0)), False)  # 45
sketch4.addGeometry(Part.LineSegment(App.Vector(33.836216, 24.943047, 0), App.Vector(34.121152, 24.943047, 0)), False)  # 46
sketch4.addGeometry(Part.LineSegment(App.Vector(34.121152, 24.943047, 0), App.Vector(34.121152, 26.127947, 0)), False)  # 47
sketch4.addGeometry(Part.BSplineCurve([App.Vector(33.253624, 27.303944, 0), App.Vector(33.296559, 27.302361, 0), App.Vector(33.380595, 27.299262, 0), App.Vector(33.502949, 27.274754, 0), App.Vector(33.617224, 27.232894, 0), App.Vector(33.723015, 27.175552, 0), App.Vector(33.81838, 27.104244, 0), App.Vector(33.902132, 27.02117, 0), App.Vector(33.971405, 26.925615, 0), App.Vector(34.017848, 26.836966, 0), App.Vector(34.048442, 26.758327, 0), App.Vector(34.067703, 26.690975, 0), App.Vector(34.084059, 26.615938, 0), App.Vector(34.09824, 26.533443, 0), App.Vector(34.107834, 26.442911, 0), App.Vector(34.115402, 26.344715, 0), App.Vector(34.120826, 26.238886, 0), App.Vector(34.121041, 26.165692, 0), App.Vector(34.121152, 26.127947, 0)], [4, 1, 1, 1, 1, 1, 1, 1, 1, 1, 1, 1, 1, 1, 1, 1, 4], [0, 0.000128741, 0.000251978, 0.000372501, 0.000492599, 0.000611662, 0.000728592, 0.000845121, 0.000964321, 0.001027748, 0.001097989, 0.001174219, 0.001258077, 0.001348963, 0.001447206, 0.001553543, 0.001666761], False, 3, [1, 1, 1, 1, 1, 1, 1, 1, 1, 1, 1, 1, 1, 1, 1, 1, 1, 1, 1], False), False)  # 48
sketch4.addGeometry(Part.BSplineCurve([App.Vector(32.370831, 26.844739, 0), App.Vector(32.401255, 26.882697, 0), App.Vector(32.460292, 26.956354, 0), App.Vector(32.558613, 27.053165, 0), App.Vector(32.66252, 27.132944, 0), App.Vector(32.771379, 27.196538, 0), App.Vector(32.885337, 27.244477, 0), App.Vector(33.0037, 27.279099, 0), App.Vector(33.127175, 27.299859, 0), App.Vector(33.211144, 27.302572, 0), App.Vector(33.253624, 27.303944, 0)], [4, 1, 1, 1, 1, 1, 1, 1, 4], [0, 0.000145848, 0.000283023, 0.000412777, 0.000537898, 0.000660162, 0.000782735, 0.000907163, 0.001034558], False, 3, [1, 1, 1, 1, 1, 1, 1, 1, 1, 1, 1], False), False)  # 49
sketch4.addGeometry(Part.LineSegment(App.Vector(32.370831, 26.844739, 0), App.Vector(32.370831, 27.263239, 0)), False)  # 50
add_polygon(sketch4, [(35.342306, 28.199457), (35.05737, 28.199457), (35.05737, 27.263239), (34.650318, 27.263239), (34.650318, 26.978303), (35.05737, 26.978303), (35.05737, 24.943047), (35.342306, 24.943047), (35.342306, 26.978303), (35.749357, 26.978303), (35.749357, 27.263239), (35.342306, 27.263239)])  # lines 51-62
sketch4.addConstraint([
    Sketcher.Constraint("Block", 1),
    Sketcher.Constraint("Block", 2),
    Sketcher.Constraint("Block", 14),
    Sketcher.Constraint("Block", 15),
    Sketcher.Constraint("Block", 20),
    Sketcher.Constraint("Block", 21),
    Sketcher.Constraint("Block", 22),
    Sketcher.Constraint("Block", 24),
    Sketcher.Constraint("Block", 25),
    Sketcher.Constraint("Block", 27),
    Sketcher.Constraint("Block", 28),
    Sketcher.Constraint("Block", 29),
    Sketcher.Constraint("Block", 30),
    Sketcher.Constraint("Block", 31),
    Sketcher.Constraint("Block", 32),
    Sketcher.Constraint("Block", 33),
    Sketcher.Constraint("Block", 34),
    Sketcher.Constraint("Block", 35),
    Sketcher.Constraint("Block", 36),
    Sketcher.Constraint("Block", 41),
    Sketcher.Constraint("Block", 42),
    Sketcher.Constraint("Block", 43),
    Sketcher.Constraint("Block", 44),
    Sketcher.Constraint("Block", 48),
    Sketcher.Constraint("Block", 49),
    Sketcher.Constraint("Coincident", 0, 2, 1, 2),
    Sketcher.Constraint("Coincident", 2, 1, 3, 1),
    Sketcher.Constraint("Coincident", 3, 2, 4, 1),
    Sketcher.Constraint("Coincident", 4, 2, 5, 1),
    Sketcher.Constraint("Coincident", 5, 2, 6, 1),
    Sketcher.Constraint("Coincident", 6, 2, 7, 1),
    Sketcher.Constraint("Coincident", 7, 2, 8, 1),
    Sketcher.Constraint("Coincident", 8, 2, 9, 1),
    Sketcher.Constraint("Coincident", 9, 2, 10, 1),
    Sketcher.Constraint("Coincident", 10, 2, 11, 1),
    Sketcher.Constraint("Coincident", 11, 2, 12, 1),
    Sketcher.Constraint("Coincident", 12, 2, 13, 1),
    Sketcher.Constraint("Coincident", 13, 2, 14, 2),
    Sketcher.Constraint("Coincident", 15, 1, 0, 1),
    Sketcher.Constraint("Coincident", 16, 2, 17, 1),
    Sketcher.Constraint("Coincident", 17, 2, 18, 1),
    Sketcher.Constraint("Coincident", 18, 2, 19, 1),
    Sketcher.Constraint("Coincident", 19, 2, 20, 2),
    Sketcher.Constraint("Coincident", 22, 1, 23, 1),
    Sketcher.Constraint("Coincident", 23, 2, 24, 2),
    Sketcher.Constraint("Coincident", 25, 1, 26, 1),
    Sketcher.Constraint("Coincident", 26, 2, 16, 1),
    Sketcher.Constraint("Coincident", 37, 2, 38, 1),
    Sketcher.Constraint("Coincident", 38, 2, 39, 1),
    Sketcher.Constraint("Coincident", 39, 2, 40, 1),
    Sketcher.Constraint("Coincident", 40, 2, 41, 2),
    Sketcher.Constraint("Coincident", 44, 1, 45, 1),
    Sketcher.Constraint("Coincident", 45, 2, 46, 1),
    Sketcher.Constraint("Coincident", 46, 2, 47, 1),
    Sketcher.Constraint("Coincident", 47, 2, 48, 2),
    Sketcher.Constraint("Coincident", 49, 1, 50, 1),
    Sketcher.Constraint("Coincident", 50, 2, 37, 1),
    Sketcher.Constraint("Vertical", 3),
    Sketcher.Constraint("Horizontal", 4),
    Sketcher.Constraint("Vertical", 5),
    Sketcher.Constraint("Horizontal", 6),
    Sketcher.Constraint("Vertical", 7),
    Sketcher.Constraint("Horizontal", 8),
    Sketcher.Constraint("Horizontal", 10),
    Sketcher.Constraint("Vertical", 11),
    Sketcher.Constraint("Horizontal", 12),
    Sketcher.Constraint("Vertical", 13),
    Sketcher.Constraint("Horizontal", 16),
    Sketcher.Constraint("Vertical", 17),
    Sketcher.Constraint("Horizontal", 18),
    Sketcher.Constraint("Vertical", 19),
    Sketcher.Constraint("Vertical", 26),
    Sketcher.Constraint("Horizontal", 37),
    Sketcher.Constraint("Vertical", 38),
    Sketcher.Constraint("Horizontal", 39),
    Sketcher.Constraint("Vertical", 40),
    Sketcher.Constraint("Vertical", 45),
    Sketcher.Constraint("Horizontal", 46),
    Sketcher.Constraint("Vertical", 47),
    Sketcher.Constraint("Vertical", 50),
    Sketcher.Constraint("Horizontal", 51),
    Sketcher.Constraint("Vertical", 52),
    Sketcher.Constraint("Horizontal", 53),
    Sketcher.Constraint("Vertical", 54),
    Sketcher.Constraint("Horizontal", 55),
    Sketcher.Constraint("Vertical", 56),
    Sketcher.Constraint("Horizontal", 57),
    Sketcher.Constraint("Vertical", 58),
    Sketcher.Constraint("Horizontal", 59),
    Sketcher.Constraint("Vertical", 60),
    Sketcher.Constraint("Horizontal", 61),
    Sketcher.Constraint("Vertical", 62),
    Sketcher.Constraint("DistanceY", 3, 2, 3, 1, 0.370798),
    Sketcher.Constraint("DistanceY", 47, 1, 47, 2, 1.184901),
    Sketcher.Constraint("DistanceY", 50, 1, 50, 2, 0.4185),
    Sketcher.Constraint("DistanceX", 23, 2, 37, 2, 3.175),
    Sketcher.Constraint("DistanceX", 4, 2, 4, 1, 0.325641),
    Sketcher.Constraint("DistanceX", 6, 1, 6, 2, 0.325641),
    Sketcher.Constraint("DistanceX", 10, 1, 10, 2, 0.48719),
    Sketcher.Constraint("DistanceX", 53, 2, 53, 1, 0.407051),
    Sketcher.Constraint("DistanceX", 55, 1, 55, 2, 0.407051),
    Sketcher.Constraint("DistanceX", 59, 1, 59, 2, 0.407051),
    Sketcher.Constraint("DistanceX", 61, 2, 61, 1, 0.407051),
    Sketcher.Constraint("DistanceY", 26, 1, 26, 2, 0.341541),
    Sketcher.Constraint("DistanceX", 12, 2, 16, 2, 0.8529),
    Sketcher.Constraint("DistanceY", 19, 2, 10, 2, 1.255499),
    Sketcher.Constraint("DistanceY", 39, 2, 47, 2, 1.184901),
    Sketcher.Constraint("DistanceY", 56, 2, 47, 2, 1.184901),
    Sketcher.Constraint("DistanceX", 8, 1, 8, 2, 0.284936),
    Sketcher.Constraint("DistanceX", 12, 2, 12, 1, 0.486553),
    Sketcher.Constraint("DistanceX", 51, 2, 51, 1, 0.284936),
    Sketcher.Constraint("DistanceY", 5, 2, 5, 1, 0.284936),
    Sketcher.Constraint("DistanceY", 7, 2, 7, 1, 2.035256),
    Sketcher.Constraint("DistanceY", 11, 1, 11, 2, 0.284936),
    Sketcher.Constraint("DistanceY", 17, 2, 17, 1, 2.320192),
    Sketcher.Constraint("DistanceY", 52, 2, 52, 1, 0.936218),
    Sketcher.Constraint("DistanceY", 54, 2, 54, 1, 0.284936),
    Sketcher.Constraint("DistanceY", 56, 2, 56, 1, 2.035256),
    Sketcher.Constraint("DistanceY", 58, 1, 58, 2, 2.035256),
    Sketcher.Constraint("DistanceY", 60, 1, 60, 2, 0.284936),
    Sketcher.Constraint("DistanceX", -1, 1, 51, 2, 35.05737),
])
pocket2 = body.newObject("PartDesign::Pocket", "Pocket001")
pocket2.Profile = sketch4
pocket2.Length = 2.54

doc.recompute()
